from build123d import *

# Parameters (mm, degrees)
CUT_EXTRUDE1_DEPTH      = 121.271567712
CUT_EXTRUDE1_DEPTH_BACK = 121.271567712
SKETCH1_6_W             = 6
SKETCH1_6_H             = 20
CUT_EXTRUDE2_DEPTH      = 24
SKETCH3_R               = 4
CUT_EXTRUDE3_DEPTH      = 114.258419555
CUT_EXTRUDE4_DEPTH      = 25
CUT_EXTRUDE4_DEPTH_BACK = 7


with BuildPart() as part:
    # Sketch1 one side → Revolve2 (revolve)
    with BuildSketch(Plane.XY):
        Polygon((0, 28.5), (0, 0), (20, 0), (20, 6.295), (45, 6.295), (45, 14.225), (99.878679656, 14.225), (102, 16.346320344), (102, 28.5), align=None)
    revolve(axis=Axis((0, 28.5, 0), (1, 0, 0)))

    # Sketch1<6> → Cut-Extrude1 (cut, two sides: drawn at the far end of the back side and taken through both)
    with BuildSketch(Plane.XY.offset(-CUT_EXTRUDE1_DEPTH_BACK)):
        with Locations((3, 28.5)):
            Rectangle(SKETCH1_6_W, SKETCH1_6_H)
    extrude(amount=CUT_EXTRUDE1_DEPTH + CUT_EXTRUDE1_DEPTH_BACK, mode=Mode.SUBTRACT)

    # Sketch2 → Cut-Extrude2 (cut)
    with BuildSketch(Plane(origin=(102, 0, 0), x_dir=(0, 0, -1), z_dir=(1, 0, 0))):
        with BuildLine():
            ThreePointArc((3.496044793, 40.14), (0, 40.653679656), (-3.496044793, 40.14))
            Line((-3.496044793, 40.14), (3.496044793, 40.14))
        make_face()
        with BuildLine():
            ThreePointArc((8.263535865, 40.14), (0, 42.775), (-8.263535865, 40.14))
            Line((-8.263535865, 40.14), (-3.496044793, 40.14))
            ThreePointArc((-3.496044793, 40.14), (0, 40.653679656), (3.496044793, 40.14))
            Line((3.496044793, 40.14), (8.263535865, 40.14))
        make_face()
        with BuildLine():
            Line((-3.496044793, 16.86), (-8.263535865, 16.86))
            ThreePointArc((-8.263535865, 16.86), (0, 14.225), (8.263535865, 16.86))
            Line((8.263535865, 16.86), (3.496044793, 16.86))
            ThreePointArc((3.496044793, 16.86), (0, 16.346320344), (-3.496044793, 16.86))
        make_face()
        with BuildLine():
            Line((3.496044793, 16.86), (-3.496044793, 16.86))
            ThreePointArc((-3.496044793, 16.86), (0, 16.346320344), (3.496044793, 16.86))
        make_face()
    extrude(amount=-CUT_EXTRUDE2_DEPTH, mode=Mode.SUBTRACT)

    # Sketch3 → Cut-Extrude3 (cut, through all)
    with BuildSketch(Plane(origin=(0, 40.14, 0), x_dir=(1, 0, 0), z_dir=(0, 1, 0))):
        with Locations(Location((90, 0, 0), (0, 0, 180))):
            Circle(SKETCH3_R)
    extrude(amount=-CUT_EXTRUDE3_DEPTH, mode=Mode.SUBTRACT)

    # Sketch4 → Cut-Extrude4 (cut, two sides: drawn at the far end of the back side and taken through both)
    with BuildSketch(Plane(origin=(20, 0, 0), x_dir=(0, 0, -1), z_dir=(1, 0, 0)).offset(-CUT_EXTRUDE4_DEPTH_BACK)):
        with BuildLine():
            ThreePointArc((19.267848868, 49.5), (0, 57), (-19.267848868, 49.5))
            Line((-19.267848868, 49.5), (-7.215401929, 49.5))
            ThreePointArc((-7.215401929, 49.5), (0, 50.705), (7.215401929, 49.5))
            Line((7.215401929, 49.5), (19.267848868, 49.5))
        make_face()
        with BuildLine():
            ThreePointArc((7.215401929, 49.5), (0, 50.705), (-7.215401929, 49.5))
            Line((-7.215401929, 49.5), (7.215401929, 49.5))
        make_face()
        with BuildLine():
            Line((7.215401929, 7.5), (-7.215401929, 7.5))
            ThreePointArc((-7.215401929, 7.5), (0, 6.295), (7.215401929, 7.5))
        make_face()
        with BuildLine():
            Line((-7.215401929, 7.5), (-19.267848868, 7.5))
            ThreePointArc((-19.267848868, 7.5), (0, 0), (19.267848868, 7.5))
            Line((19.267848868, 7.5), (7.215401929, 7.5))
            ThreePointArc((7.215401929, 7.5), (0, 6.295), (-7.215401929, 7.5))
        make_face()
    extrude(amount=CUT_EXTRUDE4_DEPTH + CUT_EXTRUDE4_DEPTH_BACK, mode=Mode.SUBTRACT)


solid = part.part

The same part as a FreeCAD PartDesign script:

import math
import FreeCAD as App
import Part
import Sketcher
Q = App.Units.Quantity

doc = App.newDocument("Part")
body = doc.addObject("PartDesign::Body", "Body")

# Sketch on XY plane
sketch1 = body.newObject("Sketcher::SketchObject", "Sketch")
sketch1.AttachmentSupport = (doc.getObject("XY_Plane"), [""])
sketch1.MapMode = "FlatFace"
sketch1.addGeometry(Part.LineSegment(App.Vector(0, 28.5, 0), App.Vector(0, 0, 0)), False)
sketch1.addGeometry(Part.LineSegment(App.Vector(0, 0, 0), App.Vector(20, 0, 0)), False)
sketch1.addGeometry(Part.LineSegment(App.Vector(20, 0, 0), App.Vector(20, 6.3, 0)), False)
sketch1.addGeometry(Part.LineSegment(App.Vector(20, 6.3, 0), App.Vector(45, 6.3, 0)), False)
sketch1.addGeometry(Part.LineSegment(App.Vector(45, 6.3, 0), App.Vector(45, 14.2, 0)), False)
sketch1.addGeometry(Part.LineSegment(App.Vector(45, 14.2, 0), App.Vector(99.9, 14.2, 0)), False)
sketch1.addGeometry(Part.LineSegment(App.Vector(99.9, 14.2, 0), App.Vector(102, 16.3, 0)), False)
sketch1.addGeometry(Part.LineSegment(App.Vector(102, 16.3, 0), App.Vector(102, 28.5, 0)), False)
sketch1.addGeometry(Part.LineSegment(App.Vector(102, 28.5, 0), App.Vector(0, 28.5, 0)), False)
sketch1.addGeometry(Part.LineSegment(App.Vector(0, 28.5, 0), App.Vector(102, 28.5, 0)), True)  # axis
sketch1.addConstraint(Sketcher.Constraint("Coincident", 0, 2, 1, 1))
sketch1.addConstraint(Sketcher.Constraint("Coincident", 1, 2, 2, 1))
sketch1.addConstraint(Sketcher.Constraint("Coincident", 2, 2, 3, 1))
sketch1.addConstraint(Sketcher.Constraint("Coincident", 3, 2, 4, 1))
sketch1.addConstraint(Sketcher.Constraint("Coincident", 4, 2, 5, 1))
sketch1.addConstraint(Sketcher.Constraint("Coincident", 5, 2, 6, 1))
sketch1.addConstraint(Sketcher.Constraint("Coincident", 6, 2, 7, 1))
sketch1.addConstraint(Sketcher.Constraint("Coincident", 7, 2, 8, 1))
sketch1.addConstraint(Sketcher.Constraint("Coincident", 8, 2, 0, 1))
sketch1.addConstraint(Sketcher.Constraint("Vertical", 0))
sketch1.addConstraint(Sketcher.Constraint("Horizontal", 1))
sketch1.addConstraint(Sketcher.Constraint("Vertical", 2))
sketch1.addConstraint(Sketcher.Constraint("Horizontal", 3))
sketch1.addConstraint(Sketcher.Constraint("Vertical", 4))
sketch1.addConstraint(Sketcher.Constraint("Horizontal", 5))
sketch1.addConstraint(Sketcher.Constraint("Vertical", 7))
sketch1.addConstraint(Sketcher.Constraint("Horizontal", 8))
sketch1.addConstraint(Sketcher.Constraint("Horizontal", 9))
sketch1.addConstraint(Sketcher.Constraint("Coincident", 0, 2, -1, 1))
sketch1.addConstraint(Sketcher.Constraint("Coincident", 9, 1, 8, 2))
sketch1.addConstraint(Sketcher.Constraint("Vertical", 6, 2, 9, 2))
sketch1.addConstraint(Sketcher.Constraint("DistanceX", 1, 1, 1, 2, Q("20 mm")))
sketch1.addConstraint(Sketcher.Constraint("DistanceX", 3, 1, 3, 2, Q("25 mm")))
sketch1.addConstraint(Sketcher.Constraint("DistanceX", 8, 2, 8, 1, Q("102 mm")))
sketch1.addConstraint(Sketcher.Constraint("Angle", 6, Q("45 deg")))
sketch1.addConstraint(Sketcher.Constraint("Distance", 6, Q("3 mm")))
sketch1.addConstraint(Sketcher.Constraint("DistanceY", 0, 2, 0, 1, Q("28.5 mm")))
sketch1.addConstraint(Sketcher.Constraint("DistanceY", 4, 1, 4, 2, Q("7.93 mm")))
sketch1.addConstraint(Sketcher.Constraint("DistanceY", 2, 1, 2, 2, Q("6.295 mm")))
revolution = body.newObject("PartDesign::Revolution", "Revolution")
revolution.Profile = sketch1
revolution.ReferenceAxis = (sketch1, ["Axis0"])
revolution.Angle = 360

# Sketch on XY plane
sketch2 = body.newObject("Sketcher::SketchObject", "Sketch001")
sketch2.AttachmentSupport = (doc.getObject("XY_Plane"), [""])
sketch2.MapMode = "FlatFace"
sketch2.addGeometry(Part.LineSegment(App.Vector(0, 38, 0), App.Vector(0, 18, 0)), False)
sketch2.addGeometry(Part.LineSegment(App.Vector(0, 18, 0), App.Vector(6, 18, 0)), False)
sketch2.addGeometry(Part.LineSegment(App.Vector(6, 18, 0), App.Vector(6, 38, 0)), False)
sketch2.addGeometry(Part.LineSegment(App.Vector(6, 38, 0), App.Vector(0, 38, 0)), False)
sketch2.addConstraint(Sketcher.Constraint("Coincident", 0, 2, 1, 1))
sketch2.addConstraint(Sketcher.Constraint("Coincident", 1, 2, 2, 1))
sketch2.addConstraint(Sketcher.Constraint("Coincident", 2, 2, 3, 1))
sketch2.addConstraint(Sketcher.Constraint("Coincident", 3, 2, 0, 1))
sketch2.addConstraint(Sketcher.Constraint("Vertical", 0))
sketch2.addConstraint(Sketcher.Constraint("Horizontal", 1))
sketch2.addConstraint(Sketcher.Constraint("Vertical", 2))
sketch2.addConstraint(Sketcher.Constraint("Horizontal", 3))
sketch2.addConstraint(Sketcher.Constraint("PointOnObject", 0, 2, -2))
sketch2.addConstraint(Sketcher.Constraint("DistanceX", 1, 1, 1, 2, Q("6 mm")))
sketch2.addConstraint(Sketcher.Constraint("DistanceY", 0, 2, 0, 1, Q("20 mm")))
sketch2.addConstraint(Sketcher.Constraint("DistanceY", -1, 1, 0, 2, Q("18.5 mm")))
pocket1 = body.newObject("PartDesign::Pocket", "Pocket")
pocket1.Profile = sketch2
pocket1.Type = "ThroughAll"
pocket1.Midplane = True

# Sketch on YZ plane
sketch3 = body.newObject("Sketcher::SketchObject", "Sketch002")
sketch3.AttachmentSupport = (doc.getObject("YZ_Plane"), [""])
sketch3.MapMode = "FlatFace"
sketch3.AttachmentOffset = App.Placement(App.Vector(0, 0, 102), App.Rotation())
sketch3.addGeometry(Part.ArcOfCircle(Part.Circle(App.Vector(29, 0, 0), App.Vector(0, 0, 1), 14), math.radians(-35), math.radians(35)), False)
sketch3.addGeometry(Part.LineSegment(App.Vector(40, 8, 0), App.Vector(40, -8, 0)), False)
sketch3.addGeometry(Part.ArcOfCircle(Part.Circle(App.Vector(28, 0, 0), App.Vector(0, 0, 1), 14), math.radians(145), math.radians(215)), False)
sketch3.addGeometry(Part.LineSegment(App.Vector(17, -8, 0), App.Vector(17, 8, 0)), False)
sketch3.addConstraint(Sketcher.Constraint("Coincident", 0, 1, 1, 2))
sketch3.addConstraint(Sketcher.Constraint("Coincident", 1, 1, 0, 2))
sketch3.addConstraint(Sketcher.Constraint("Coincident", 2, 1, 3, 2))
sketch3.addConstraint(Sketcher.Constraint("Coincident", 3, 1, 2, 2))
sketch3.addConstraint(Sketcher.Constraint("Vertical", 1))
sketch3.addConstraint(Sketcher.Constraint("Vertical", 3))
sketch3.addConstraint(Sketcher.Constraint("Coincident", 2, 3, 0, 3))
sketch3.addConstraint(Sketcher.Constraint("Equal", 0, 2))
sketch3.addConstraint(Sketcher.Constraint("PointOnObject", 0, 3, -1))
sketch3.addConstraint(Sketcher.Constraint("Horizontal", 1, 1, 2, 1))
sketch3.addConstraint(Sketcher.Constraint("Radius", 0, Q("14.275 mm")))
sketch3.addConstraint(Sketcher.Constraint("DistanceX", -1, 1, 0, 3, Q("28.5 mm")))
sketch3.addConstraint(Sketcher.Constraint("DistanceX", -1, 1, 0, 1, Q("40.14 mm")))
pocket2 = body.newObject("PartDesign::Pocket", "Pocket001")
pocket2.Profile = sketch3
pocket2.Length = 24

# Sketch on XZ plane
sketch4 = body.newObject("Sketcher::SketchObject", "Sketch003")
sketch4.AttachmentSupport = (doc.getObject("XZ_Plane"), [""])
sketch4.MapMode = "FlatFace"
sketch4.AttachmentOffset = App.Placement(App.Vector(0, 0, -40.14), App.Rotation())
sketch4.addGeometry(Part.Circle(App.Vector(90, 0, 0), App.Vector(0, 0, 1), 4), False)
sketch4.addConstraint(Sketcher.Constraint("PointOnObject", 0, 3, -1))
sketch4.addConstraint(Sketcher.Constraint("Diameter", 0, Q("8 mm")))
sketch4.addConstraint(Sketcher.Constraint("DistanceX", -1, 1, 0, 3, Q("90 mm")))
pocket3 = body.newObject("PartDesign::Pocket", "Pocket002")
pocket3.Profile = sketch4
pocket3.Type = "ThroughAll"
pocket3.Reversed = True

# Sketch on YZ plane
sketch5 = body.newObject("Sketcher::SketchObject", "Sketch004")
sketch5.AttachmentSupport = (doc.getObject("YZ_Plane"), [""])
sketch5.MapMode = "FlatFace"
sketch5.AttachmentOffset = App.Placement(App.Vector(0, 0, 20), App.Rotation())
sketch5.addGeometry(Part.ArcOfCircle(Part.Circle(App.Vector(28, 0, 0), App.Vector(0, 0, 1), 28), math.radians(-43), math.radians(43)), False)
sketch5.addGeometry(Part.LineSegment(App.Vector(50, 19, 0), App.Vector(50, -19, 0)), False)
sketch5.addGeometry(Part.ArcOfCircle(Part.Circle(App.Vector(28, 0, 0), App.Vector(0, 0, 1), 28), math.radians(137), math.radians(223)), False)
sketch5.addGeometry(Part.LineSegment(App.Vector(8, -19, 0), App.Vector(8, 19, 0)), False)
sketch5.addConstraint(Sketcher.Constraint("Coincident", 0, 1, 1, 2))
sketch5.addConstraint(Sketcher.Constraint("Coincident", 1, 1, 0, 2))
sketch5.addConstraint(Sketcher.Constraint("Coincident", 2, 1, 3, 2))
sketch5.addConstraint(Sketcher.Constraint("Coincident", 3, 1, 2, 2))
sketch5.addConstraint(Sketcher.Constraint("Vertical", 1))
sketch5.addConstraint(Sketcher.Constraint("Vertical", 3))
sketch5.addConstraint(Sketcher.Constraint("Coincident", 2, 3, 0, 3))
sketch5.addConstraint(Sketcher.Constraint("Equal", 0, 2))
sketch5.addConstraint(Sketcher.Constraint("PointOnObject", 0, 3, -1))
sketch5.addConstraint(Sketcher.Constraint("Horizontal", 1, 1, 2, 1))
sketch5.addConstraint(Sketcher.Constraint("Radius", 0, Q("28.5 mm")))
sketch5.addConstraint(Sketcher.Constraint("DistanceX", 0, 3, 0, 1, Q("21 mm")))
sketch5.addConstraint(Sketcher.Constraint("DistanceX", -1, 1, 0, 3, Q("28.5 mm")))
pocket4 = body.newObject("PartDesign::Pocket", "Pocket003")
pocket4.Profile = sketch5
pocket4.Type = "TwoLengths"
pocket4.Length = 25
pocket4.Length2 = 7
pocket4.Reversed = True

doc.recompute()
